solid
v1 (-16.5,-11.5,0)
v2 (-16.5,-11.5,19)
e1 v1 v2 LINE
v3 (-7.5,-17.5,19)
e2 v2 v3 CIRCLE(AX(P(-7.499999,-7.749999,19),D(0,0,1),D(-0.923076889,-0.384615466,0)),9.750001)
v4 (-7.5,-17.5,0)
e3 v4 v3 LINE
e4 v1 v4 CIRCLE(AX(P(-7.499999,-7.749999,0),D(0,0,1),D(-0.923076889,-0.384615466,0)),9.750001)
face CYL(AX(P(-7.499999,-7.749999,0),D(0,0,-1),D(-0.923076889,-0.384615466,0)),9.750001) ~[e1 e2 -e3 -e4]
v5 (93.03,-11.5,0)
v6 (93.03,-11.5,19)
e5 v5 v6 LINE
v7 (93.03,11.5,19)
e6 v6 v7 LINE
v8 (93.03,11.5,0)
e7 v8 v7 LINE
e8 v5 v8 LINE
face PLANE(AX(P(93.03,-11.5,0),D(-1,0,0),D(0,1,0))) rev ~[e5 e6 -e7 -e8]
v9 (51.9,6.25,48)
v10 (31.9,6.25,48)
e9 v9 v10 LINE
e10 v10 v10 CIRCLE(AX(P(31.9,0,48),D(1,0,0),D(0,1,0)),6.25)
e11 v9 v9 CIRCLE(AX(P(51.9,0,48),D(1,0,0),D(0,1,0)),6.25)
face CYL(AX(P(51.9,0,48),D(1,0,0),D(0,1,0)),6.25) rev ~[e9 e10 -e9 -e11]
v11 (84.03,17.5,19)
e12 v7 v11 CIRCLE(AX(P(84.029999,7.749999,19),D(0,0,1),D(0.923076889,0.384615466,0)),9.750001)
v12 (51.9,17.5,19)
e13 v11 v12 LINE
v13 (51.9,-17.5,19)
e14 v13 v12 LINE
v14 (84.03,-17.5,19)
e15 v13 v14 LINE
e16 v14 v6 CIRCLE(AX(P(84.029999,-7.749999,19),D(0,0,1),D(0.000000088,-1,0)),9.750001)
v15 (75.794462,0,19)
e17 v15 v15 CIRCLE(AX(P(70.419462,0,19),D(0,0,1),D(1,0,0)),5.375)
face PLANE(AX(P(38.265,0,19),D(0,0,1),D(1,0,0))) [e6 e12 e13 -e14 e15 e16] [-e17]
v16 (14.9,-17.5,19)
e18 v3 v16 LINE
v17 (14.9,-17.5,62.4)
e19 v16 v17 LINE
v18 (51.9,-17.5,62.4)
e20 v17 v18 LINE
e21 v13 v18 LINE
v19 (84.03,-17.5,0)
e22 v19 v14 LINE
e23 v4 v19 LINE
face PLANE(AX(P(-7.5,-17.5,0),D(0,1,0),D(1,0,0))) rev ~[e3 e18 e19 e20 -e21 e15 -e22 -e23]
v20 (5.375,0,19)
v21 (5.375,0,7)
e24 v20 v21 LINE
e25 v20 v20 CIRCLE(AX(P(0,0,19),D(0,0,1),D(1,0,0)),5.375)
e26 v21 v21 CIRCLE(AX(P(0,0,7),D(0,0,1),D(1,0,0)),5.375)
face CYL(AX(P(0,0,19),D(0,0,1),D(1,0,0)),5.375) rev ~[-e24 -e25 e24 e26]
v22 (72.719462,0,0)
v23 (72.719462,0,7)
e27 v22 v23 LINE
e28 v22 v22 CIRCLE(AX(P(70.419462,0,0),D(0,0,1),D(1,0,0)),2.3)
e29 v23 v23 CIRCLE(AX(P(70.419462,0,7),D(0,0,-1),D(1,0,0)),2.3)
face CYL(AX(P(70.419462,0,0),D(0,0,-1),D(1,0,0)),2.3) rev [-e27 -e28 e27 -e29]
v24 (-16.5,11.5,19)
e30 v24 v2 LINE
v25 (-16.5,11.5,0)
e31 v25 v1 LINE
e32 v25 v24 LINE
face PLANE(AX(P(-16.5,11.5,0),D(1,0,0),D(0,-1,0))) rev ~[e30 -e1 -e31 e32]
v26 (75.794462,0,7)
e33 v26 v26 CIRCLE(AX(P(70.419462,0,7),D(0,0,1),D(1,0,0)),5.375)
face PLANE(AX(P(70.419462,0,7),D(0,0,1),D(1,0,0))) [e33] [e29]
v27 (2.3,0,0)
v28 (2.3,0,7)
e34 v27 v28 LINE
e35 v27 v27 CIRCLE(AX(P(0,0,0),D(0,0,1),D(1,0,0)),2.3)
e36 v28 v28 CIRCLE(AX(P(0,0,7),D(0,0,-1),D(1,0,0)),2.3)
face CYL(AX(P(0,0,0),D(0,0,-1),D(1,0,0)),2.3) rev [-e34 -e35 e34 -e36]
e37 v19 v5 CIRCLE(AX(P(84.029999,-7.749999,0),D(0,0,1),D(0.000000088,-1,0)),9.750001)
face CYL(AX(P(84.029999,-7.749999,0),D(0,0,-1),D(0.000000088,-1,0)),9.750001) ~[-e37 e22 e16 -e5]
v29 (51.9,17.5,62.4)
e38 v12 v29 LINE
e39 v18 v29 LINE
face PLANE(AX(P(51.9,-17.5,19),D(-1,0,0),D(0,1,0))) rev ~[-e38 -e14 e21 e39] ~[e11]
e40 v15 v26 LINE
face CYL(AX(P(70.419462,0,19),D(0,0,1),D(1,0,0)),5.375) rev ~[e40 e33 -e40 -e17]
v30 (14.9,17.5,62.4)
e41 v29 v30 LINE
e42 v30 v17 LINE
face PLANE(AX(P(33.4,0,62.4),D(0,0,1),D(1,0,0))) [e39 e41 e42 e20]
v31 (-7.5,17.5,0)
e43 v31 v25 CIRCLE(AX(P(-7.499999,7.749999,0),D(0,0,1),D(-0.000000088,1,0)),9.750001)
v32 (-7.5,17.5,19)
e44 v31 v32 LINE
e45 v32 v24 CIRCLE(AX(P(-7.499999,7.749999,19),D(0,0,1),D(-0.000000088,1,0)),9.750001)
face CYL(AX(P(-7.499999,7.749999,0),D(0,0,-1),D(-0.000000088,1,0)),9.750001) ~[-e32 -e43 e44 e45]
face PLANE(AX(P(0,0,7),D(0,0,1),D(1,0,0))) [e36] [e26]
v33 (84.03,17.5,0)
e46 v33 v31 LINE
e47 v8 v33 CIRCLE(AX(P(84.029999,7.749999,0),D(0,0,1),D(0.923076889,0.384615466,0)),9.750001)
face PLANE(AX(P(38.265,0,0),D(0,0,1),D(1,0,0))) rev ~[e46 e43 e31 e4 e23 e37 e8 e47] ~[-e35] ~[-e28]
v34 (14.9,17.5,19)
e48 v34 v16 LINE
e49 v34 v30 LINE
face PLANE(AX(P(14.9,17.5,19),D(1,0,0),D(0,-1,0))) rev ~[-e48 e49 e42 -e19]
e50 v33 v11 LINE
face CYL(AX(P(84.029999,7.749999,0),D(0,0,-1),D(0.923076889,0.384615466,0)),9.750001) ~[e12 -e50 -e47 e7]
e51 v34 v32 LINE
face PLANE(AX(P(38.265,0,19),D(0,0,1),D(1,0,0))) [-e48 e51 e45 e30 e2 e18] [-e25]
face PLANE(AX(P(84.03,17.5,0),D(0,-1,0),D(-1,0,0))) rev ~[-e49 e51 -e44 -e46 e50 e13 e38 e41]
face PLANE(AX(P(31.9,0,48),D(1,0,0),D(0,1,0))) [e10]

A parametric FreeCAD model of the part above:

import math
import FreeCAD as App
import Part
import Sketcher
from FreeCAD import Vector
Q = App.Units.Quantity

doc = App.newDocument("Part")
body = doc.addObject("PartDesign::Body", "Body")

# Sketch on XY plane
sketch1 = body.newObject("Sketcher::SketchObject", "Sketch")
sketch1.AttachmentSupport = (doc.getObject("XY_Plane"), [""])
sketch1.MapMode = "FlatFace"
sketch1.addGeometry(Part.LineSegment(Vector(84.03, 17.5, 0), Vector(-7.5, 17.5, 0)), False)
sketch1.addGeometry(Part.ArcOfCircle(Part.Circle(Vector(-7.499999, 7.749999, 0), Vector(0, 0, 1), 9.750001), math.radians(90.000005), math.radians(157.38013)), False)
sketch1.addGeometry(Part.LineSegment(Vector(-16.5, 11.5, 0), Vector(-16.5, -11.5, 0)), False)
sketch1.addGeometry(Part.ArcOfCircle(Part.Circle(Vector(-7.499999, -7.749999, 0), Vector(0, 0, 1), 9.750001), math.radians(-157.38013), math.radians(-90.000005)), False)
sketch1.addGeometry(Part.LineSegment(Vector(-7.5, -17.5, 0), Vector(84.03, -17.5, 0)), False)
sketch1.addGeometry(Part.ArcOfCircle(Part.Circle(Vector(84.029999, -7.749999, 0), Vector(0, 0, 1), 9.750001), math.radians(-89.999995), math.radians(-22.61987)), False)
sketch1.addGeometry(Part.LineSegment(Vector(93.03, -11.5, 0), Vector(93.03, 11.5, 0)), False)
sketch1.addGeometry(Part.ArcOfCircle(Part.Circle(Vector(84.029999, 7.749999, 0), Vector(0, 0, 1), 9.750001), math.radians(22.61987), math.radians(89.999995)), False)
sketch1.addGeometry(Part.Circle(Vector(0, 0, 0), Vector(0, 0, 1), 2.3), False)
sketch1.addGeometry(Part.Circle(Vector(70.419462, 0, 0), Vector(0, 0, 1), 2.3), False)
sketch1.addConstraint(Sketcher.Constraint("Tangent", 0, 2, 1, 1))
sketch1.addConstraint(Sketcher.Constraint("Coincident", 1, 2, 2, 1))
sketch1.addConstraint(Sketcher.Constraint("Coincident", 2, 2, 3, 1))
sketch1.addConstraint(Sketcher.Constraint("Tangent", 3, 2, 4, 1))
sketch1.addConstraint(Sketcher.Constraint("Tangent", 4, 2, 5, 1))
sketch1.addConstraint(Sketcher.Constraint("Coincident", 5, 2, 6, 1))
sketch1.addConstraint(Sketcher.Constraint("Coincident", 6, 2, 7, 1))
sketch1.addConstraint(Sketcher.Constraint("Tangent", 7, 2, 0, 1))
sketch1.addConstraint(Sketcher.Constraint("Horizontal", 0))
sketch1.addConstraint(Sketcher.Constraint("Vertical", 2))
sketch1.addConstraint(Sketcher.Constraint("Horizontal", 4))
sketch1.addConstraint(Sketcher.Constraint("Vertical", 6))
sketch1.addConstraint(Sketcher.Constraint("Coincident", 8, 3, -1, 1))
sketch1.addConstraint(Sketcher.Constraint("Equal", 1, 3))
sketch1.addConstraint(Sketcher.Constraint("Equal", 3, 5))
sketch1.addConstraint(Sketcher.Constraint("Equal", 5, 7))
sketch1.addConstraint(Sketcher.Constraint("Equal", 8, 9))
sketch1.addConstraint(Sketcher.Constraint("Symmetric", 1, 3, 3, 3, -1))
sketch1.addConstraint(Sketcher.Constraint("PointOnObject", 9, 3, -1))
sketch1.addConstraint(Sketcher.Constraint("Horizontal", 2, 2, 5, 2))
sketch1.addConstraint(Sketcher.Constraint("Horizontal", 1, 2, 6, 2))
sketch1.addConstraint(Sketcher.Constraint("Diameter", 8, Q("4.6 mm")))
sketch1.addConstraint(Sketcher.Constraint("DistanceY", 2, 2, 2, 1, Q("23 mm")))
sketch1.addConstraint(Sketcher.Constraint("Radius", 1, Q("9.750001 mm")))
sketch1.addConstraint(Sketcher.Constraint("DistanceX", 1, 2, 1, 3, Q("9.000001 mm")))
sketch1.addConstraint(Sketcher.Constraint("DistanceX", 0, 2, 0, 1, Q("91.53 mm")))
sketch1.addConstraint(Sketcher.Constraint("DistanceX", 1, 3, -1, 1, Q("7.499999 mm")))
sketch1.addConstraint(Sketcher.Constraint("DistanceX", -1, 1, 9, 3, Q("70.419462 mm")))
pad1 = body.newObject("PartDesign::Pad", "Pad")
pad1.Profile = sketch1
pad1.Length = 19

# Sketch on XY plane
sketch2 = body.newObject("Sketcher::SketchObject", "Sketch001")
sketch2.AttachmentSupport = (doc.getObject("XY_Plane"), [""])
sketch2.MapMode = "FlatFace"
sketch2.AttachmentOffset = App.Placement(Vector(0, 0, 19), App.Rotation())
sketch2.addGeometry(Part.LineSegment(Vector(14.9, 17.5, 0), Vector(14.9, -17.5, 0)), False)
sketch2.addGeometry(Part.LineSegment(Vector(14.9, -17.5, 0), Vector(51.9, -17.5, 0)), False)
sketch2.addGeometry(Part.LineSegment(Vector(51.9, -17.5, 0), Vector(51.9, 17.5, 0)), False)
sketch2.addGeometry(Part.LineSegment(Vector(51.9, 17.5, 0), Vector(14.9, 17.5, 0)), False)
sketch2.addConstraint(Sketcher.Constraint("Coincident", 0, 2, 1, 1))
sketch2.addConstraint(Sketcher.Constraint("Coincident", 1, 2, 2, 1))
sketch2.addConstraint(Sketcher.Constraint("Coincident", 2, 2, 3, 1))
sketch2.addConstraint(Sketcher.Constraint("Coincident", 3, 2, 0, 1))
sketch2.addConstraint(Sketcher.Constraint("Vertical", 0))
sketch2.addConstraint(Sketcher.Constraint("Horizontal", 1))
sketch2.addConstraint(Sketcher.Constraint("Vertical", 2))
sketch2.addConstraint(Sketcher.Constraint("Horizontal", 3))
sketch2.addConstraint(Sketcher.Constraint("DistanceX", 1, 1, 1, 2, Q("37 mm")))
sketch2.addConstraint(Sketcher.Constraint("DistanceY", 0, 2, 0, 1, Q("35 mm")))
sketch2.addConstraint(Sketcher.Constraint("DistanceX", -1, 1, 0, 2, Q("14.9 mm")))
sketch2.addConstraint(Sketcher.Constraint("DistanceY", 0, 2, -1, 1, Q("17.5 mm")))
pad2 = body.newObject("PartDesign::Pad", "Pad001")
pad2.Profile = sketch2
pad2.Length = 43.4

# Sketch on YZ plane
sketch3 = body.newObject("Sketcher::SketchObject", "Sketch002")
sketch3.AttachmentSupport = (doc.getObject("YZ_Plane"), [""])
sketch3.MapMode = "FlatFace"
sketch3.AttachmentOffset = App.Placement(Vector(0, 0, 51.9), App.Rotation())
sketch3.addGeometry(Part.Circle(Vector(0, 48, 0), Vector(0, 0, 1), 6.25), False)
sketch3.addConstraint(Sketcher.Constraint("PointOnObject", 0, 3, -2))
sketch3.addConstraint(Sketcher.Constraint("Diameter", 0, Q("12.5 mm")))
sketch3.addConstraint(Sketcher.Constraint("DistanceY", -1, 1, 0, 3, Q("48 mm")))
pocket1 = body.newObject("PartDesign::Pocket", "Pocket")
pocket1.Profile = sketch3
pocket1.Length = 20

# Sketch on XY plane
sketch4 = body.newObject("Sketcher::SketchObject", "Sketch003")
sketch4.AttachmentSupport = (doc.getObject("XY_Plane"), [""])
sketch4.MapMode = "FlatFace"
sketch4.AttachmentOffset = App.Placement(Vector(0, 0, 19), App.Rotation())
sketch4.addGeometry(Part.Circle(Vector(0, 0, 0), Vector(0, 0, 1), 5.375), False)
sketch4.addGeometry(Part.Circle(Vector(70.419462, 0, 0), Vector(0, 0, 1), 5.375), False)
sketch4.addConstraint(Sketcher.Constraint("Coincident", 0, 3, -1, 1))
sketch4.addConstraint(Sketcher.Constraint("Equal", 0, 1))
sketch4.addConstraint(Sketcher.Constraint("PointOnObject", 1, 3, -1))
sketch4.addConstraint(Sketcher.Constraint("Diameter", 0, Q("10.75 mm")))
sketch4.addConstraint(Sketcher.Constraint("DistanceX", -1, 1, 1, 3, Q("70.419462 mm")))
pocket2 = body.newObject("PartDesign::Pocket", "Pocket001")
pocket2.Profile = sketch4
pocket2.Length = 12

doc.recompute()
